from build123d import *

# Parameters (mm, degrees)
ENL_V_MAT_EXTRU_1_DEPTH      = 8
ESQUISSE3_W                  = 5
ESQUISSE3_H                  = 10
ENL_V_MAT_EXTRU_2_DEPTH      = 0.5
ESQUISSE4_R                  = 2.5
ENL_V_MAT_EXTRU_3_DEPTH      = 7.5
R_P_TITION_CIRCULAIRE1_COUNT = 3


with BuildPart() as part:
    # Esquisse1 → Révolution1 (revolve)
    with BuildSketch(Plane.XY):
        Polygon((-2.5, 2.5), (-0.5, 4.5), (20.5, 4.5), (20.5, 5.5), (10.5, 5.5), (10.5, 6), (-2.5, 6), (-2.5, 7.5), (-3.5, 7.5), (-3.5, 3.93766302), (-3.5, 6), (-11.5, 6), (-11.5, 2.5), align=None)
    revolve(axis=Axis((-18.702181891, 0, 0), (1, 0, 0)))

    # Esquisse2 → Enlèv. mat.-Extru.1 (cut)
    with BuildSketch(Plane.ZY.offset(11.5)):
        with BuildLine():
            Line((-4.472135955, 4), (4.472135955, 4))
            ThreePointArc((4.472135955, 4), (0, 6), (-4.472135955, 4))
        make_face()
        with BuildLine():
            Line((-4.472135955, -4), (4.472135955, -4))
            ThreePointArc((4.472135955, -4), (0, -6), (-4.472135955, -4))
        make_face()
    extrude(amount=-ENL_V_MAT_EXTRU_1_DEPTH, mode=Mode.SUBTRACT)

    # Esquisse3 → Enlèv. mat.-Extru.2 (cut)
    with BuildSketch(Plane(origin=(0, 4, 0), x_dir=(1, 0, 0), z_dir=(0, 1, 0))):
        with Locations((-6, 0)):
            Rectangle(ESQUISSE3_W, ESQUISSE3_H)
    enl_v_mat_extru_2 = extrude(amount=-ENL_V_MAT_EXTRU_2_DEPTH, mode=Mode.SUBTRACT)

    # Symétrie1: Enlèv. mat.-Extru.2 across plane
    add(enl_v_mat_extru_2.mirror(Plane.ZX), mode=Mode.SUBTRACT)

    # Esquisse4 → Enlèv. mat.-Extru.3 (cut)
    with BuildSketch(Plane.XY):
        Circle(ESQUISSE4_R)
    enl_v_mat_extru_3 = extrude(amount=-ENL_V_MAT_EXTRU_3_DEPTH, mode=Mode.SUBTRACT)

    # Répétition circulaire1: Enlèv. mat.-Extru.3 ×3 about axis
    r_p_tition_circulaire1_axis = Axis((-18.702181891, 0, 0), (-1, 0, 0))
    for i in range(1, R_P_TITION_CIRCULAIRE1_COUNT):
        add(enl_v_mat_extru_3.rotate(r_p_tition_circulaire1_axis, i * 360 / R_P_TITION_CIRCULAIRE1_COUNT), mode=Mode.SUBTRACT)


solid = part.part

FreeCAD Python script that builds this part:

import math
import FreeCAD as App
import Part
import Sketcher
Q = App.Units.Quantity

doc = App.newDocument("Part")
params = doc.addObject("Spreadsheet::Sheet", "Params")
for row, (alias, value) in enumerate([
    ("sketch1_width", "21 mm"),
    ("sketch1_width2", "10 mm"),
    ("sketch1_width3", "13 mm"),
    ("sketch1_width4", "1 mm"),
    ("sketch1_width5", "8 mm"),
    ("revolution_angle", "360 deg"),
    ("sketch2_radius", "6 mm"),
    ("pocket1_length", "8 mm"),
    ("sketch3_width", "5 mm"),
    ("sketch3_height", "10 mm"),
    ("pocket2_length", "0.5 mm"),
    ("sketch4_diameter", "5 mm"),
    ("pocket3_length", "7.5 mm"),
], start=1):
    params.set(f"A{row}", alias)
    params.set(f"B{row}", "=" + value)
    params.setAlias(f"B{row}", alias)

body = doc.addObject("PartDesign::Body", "Body")

# Sketch on XY plane
sketch1 = doc.addObject("Sketcher::SketchObject", "Sketch")
body.addObject(sketch1)
sketch1.AttachmentSupport = (doc.XY_Plane, [""])
sketch1.MapMode = "FlatFace"
sketch1.addGeometry([
    Part.LineSegment(App.Vector(-2.5, 2.5, 0), App.Vector(-0.5, 4.5, 0)),  # 0
    Part.LineSegment(App.Vector(-0.5, 4.5, 0), App.Vector(20.5, 4.5, 0)),  # 1
    Part.LineSegment(App.Vector(20.5, 4.5, 0), App.Vector(20.5, 5.5, 0)),  # 2
    Part.LineSegment(App.Vector(20.5, 5.5, 0), App.Vector(10.5, 5.5, 0)),  # 3
    Part.LineSegment(App.Vector(10.5, 5.5, 0), App.Vector(10.5, 6, 0)),  # 4
    Part.LineSegment(App.Vector(10.5, 6, 0), App.Vector(-2.5, 6, 0)),  # 5
    Part.LineSegment(App.Vector(-2.5, 6, 0), App.Vector(-2.5, 7.5, 0)),  # 6
    Part.LineSegment(App.Vector(-2.5, 7.5, 0), App.Vector(-3.5, 7.5, 0)),  # 7
    Part.LineSegment(App.Vector(-3.5, 7.5, 0), App.Vector(-3.5, 6, 0)),  # 8
    Part.LineSegment(App.Vector(-3.5, 6, 0), App.Vector(-11.5, 6, 0)),  # 9
    Part.LineSegment(App.Vector(-11.5, 6, 0), App.Vector(-11.5, 2.5, 0)),  # 10
    Part.LineSegment(App.Vector(-11.5, 2.5, 0), App.Vector(-2.5, 2.5, 0)),  # 11
], False)
sketch1.addConstraint([
    Sketcher.Constraint("Coincident", 0, 2, 1, 1),
    Sketcher.Constraint("Coincident", 1, 2, 2, 1),
    Sketcher.Constraint("Coincident", 2, 2, 3, 1),
    Sketcher.Constraint("Coincident", 3, 2, 4, 1),
    Sketcher.Constraint("Coincident", 4, 2, 5, 1),
    Sketcher.Constraint("Coincident", 5, 2, 6, 1),
    Sketcher.Constraint("Coincident", 6, 2, 7, 1),
    Sketcher.Constraint("Coincident", 7, 2, 8, 1),
    Sketcher.Constraint("Coincident", 8, 2, 9, 1),
    Sketcher.Constraint("Coincident", 9, 2, 10, 1),
    Sketcher.Constraint("Coincident", 10, 2, 11, 1),
    Sketcher.Constraint("Coincident", 11, 2, 0, 1),
    Sketcher.Constraint("Horizontal", 1),
    Sketcher.Constraint("Vertical", 2),
    Sketcher.Constraint("Horizontal", 3),
    Sketcher.Constraint("Vertical", 4),
    Sketcher.Constraint("Horizontal", 5),
    Sketcher.Constraint("Vertical", 6),
    Sketcher.Constraint("Horizontal", 7),
    Sketcher.Constraint("Vertical", 8),
    Sketcher.Constraint("Horizontal", 9),
    Sketcher.Constraint("Vertical", 10),
    Sketcher.Constraint("Horizontal", 11),
    Sketcher.Constraint("Horizontal", 5, 2, 8, 2),
    Sketcher.Constraint("Vertical", 6, 2, 11, 2),
    Sketcher.Constraint("Equal", 7, 2),
    Sketcher.Constraint("DistanceX", 1, 1, 1, 2, 21.0),
    Sketcher.Constraint("DistanceX", 3, 2, 3, 1, 10.0),
    Sketcher.Constraint("DistanceX", 5, 2, 5, 1, 13.0),
    Sketcher.Constraint("DistanceX", 7, 2, 7, 1, 1.0),
    Sketcher.Constraint("DistanceX", 9, 2, 9, 1, 8.0),
    Sketcher.Constraint("Angle", 0, Q("45 deg")),
    Sketcher.Constraint("DistanceY", 4, 1, 4, 2, 0.5),
    Sketcher.Constraint("DistanceY", 6, 1, 6, 2, 1.5),
    Sketcher.Constraint("DistanceY", -1, 1, 4, 2, 6.0),
    Sketcher.Constraint("DistanceX", 0, 2, -1, 1, 0.5),
])
sketch1.setExpression("Constraints[26]", "Params.sketch1_width")
sketch1.setExpression("Constraints[27]", "Params.sketch1_width2")
sketch1.setExpression("Constraints[28]", "Params.sketch1_width3")
sketch1.setExpression("Constraints[29]", "Params.sketch1_width4")
sketch1.setExpression("Constraints[30]", "Params.sketch1_width5")
revolution = doc.addObject("PartDesign::Revolution", "Revolution")
body.addObject(revolution)
revolution.Profile = sketch1
revolution.ReferenceAxis = (sketch1, ["H_Axis"])
revolution.setExpression("Angle", "Params.revolution_angle")

# Sketch on YZ plane
sketch2 = doc.addObject("Sketcher::SketchObject", "Sketch001")
body.addObject(sketch2)
sketch2.AttachmentSupport = (doc.YZ_Plane, [""])
sketch2.MapMode = "FlatFace"
sketch2.AttachmentOffset = App.Placement(App.Vector(0, 0, -11.5), App.Rotation())
sketch2.addGeometry([
    Part.LineSegment(App.Vector(4, -4.472136, 0), App.Vector(4, 4.472136, 0)),
    Part.ArcOfCircle(Part.Circle(App.Vector(0, 0, 0), App.Vector(0, 0, 1), 6), math.radians(-48.189685), math.radians(48.189685)),
    Part.LineSegment(App.Vector(-4, 4.472136, 0), App.Vector(-4, -4.472136, 0)),
    Part.ArcOfCircle(Part.Circle(App.Vector(0, 0, 0), App.Vector(0, 0, 1), 6), math.radians(131.810315), math.radians(228.189685)),
], False)
sketch2.addConstraint([
    Sketcher.Constraint("Coincident", 0, 1, 1, 1),
    Sketcher.Constraint("Coincident", 1, 2, 0, 2),
    Sketcher.Constraint("Coincident", 2, 1, 3, 1),
    Sketcher.Constraint("Coincident", 3, 2, 2, 2),
    Sketcher.Constraint("Vertical", 0),
    Sketcher.Constraint("Vertical", 2),
    Sketcher.Constraint("Coincident", 1, 3, -1, 1),
    Sketcher.Constraint("Coincident", 3, 3, -1, 1),
    Sketcher.Constraint("Equal", 1, 3),
    Sketcher.Constraint("Horizontal", 1, 2, 2, 1),
    Sketcher.Constraint("Radius", 1, 6.0),
    Sketcher.Constraint("DistanceX", -1, 1, 0, 1, 4.0),
])
sketch2.setExpression("Constraints[10]", "Params.sketch2_radius")
pocket1 = doc.addObject("PartDesign::Pocket", "Pocket")
body.addObject(pocket1)
pocket1.Profile = sketch2
pocket1.setExpression("Length", "Params.pocket1_length")
pocket1.Reversed = True

# Sketch on XZ plane
sketch3 = doc.addObject("Sketcher::SketchObject", "Sketch002")
body.addObject(sketch3)
sketch3.AttachmentSupport = (doc.XZ_Plane, [""])
sketch3.MapMode = "FlatFace"
sketch3.AttachmentOffset = App.Placement(App.Vector(0, 0, -4), App.Rotation())
sketch3.addGeometry([
    Part.LineSegment(App.Vector(-8.5, -5, 0), App.Vector(-8.5, 5, 0)),
    Part.LineSegment(App.Vector(-8.5, 5, 0), App.Vector(-3.5, 5, 0)),
    Part.LineSegment(App.Vector(-3.5, 5, 0), App.Vector(-3.5, -5, 0)),
    Part.LineSegment(App.Vector(-3.5, -5, 0), App.Vector(-8.5, -5, 0)),
], False)
sketch3.addConstraint([
    Sketcher.Constraint("Coincident", 0, 2, 1, 1),
    Sketcher.Constraint("Coincident", 1, 2, 2, 1),
    Sketcher.Constraint("Coincident", 2, 2, 3, 1),
    Sketcher.Constraint("Coincident", 3, 2, 0, 1),
    Sketcher.Constraint("Vertical", 0),
    Sketcher.Constraint("Horizontal", 1),
    Sketcher.Constraint("Vertical", 2),
    Sketcher.Constraint("Horizontal", 3),
    Sketcher.Constraint("DistanceX", 1, 1, 1, 2, 5.0),
    Sketcher.Constraint("DistanceY", 0, 1, 0, 2, 10.0),
    Sketcher.Constraint("DistanceY", -1, 1, 0, 2, 5.0),
    Sketcher.Constraint("DistanceX", 0, 2, -1, 1, 8.5),
])
sketch3.setExpression("Constraints[8]", "Params.sketch3_width")
sketch3.setExpression("Constraints[9]", "Params.sketch3_height")
pocket2 = doc.addObject("PartDesign::Pocket", "Pocket001")
body.addObject(pocket2)
pocket2.Profile = sketch3
pocket2.setExpression("Length", "Params.pocket2_length")
pocket2.Reversed = True
doc.recompute()

mirrored = doc.addObject("PartDesign::Mirrored", "Mirrored")
body.addObject(mirrored)
mirrored.Originals = [pocket2]
mirrored.MirrorPlane = (doc.XZ_Plane, [""])
body.Tip = mirrored

# Sketch on XY plane
sketch4 = doc.addObject("Sketcher::SketchObject", "Sketch003")
body.addObject(sketch4)
sketch4.AttachmentSupport = (doc.XY_Plane, [""])
sketch4.MapMode = "FlatFace"
sketch4.addGeometry(Part.Circle(App.Vector(0, 0, 0), App.Vector(0, 0, 1), 2.5), False)
sketch4.addConstraint([
    Sketcher.Constraint("Coincident", 0, 3, -1, 1),
    Sketcher.Constraint("Diameter", 0, 5.0),
])
sketch4.setExpression("Constraints[1]", "Params.sketch4_diameter")
pocket3 = doc.addObject("PartDesign::Pocket", "Pocket002")
body.addObject(pocket3)
pocket3.Profile = sketch4
pocket3.setExpression("Length", "Params.pocket3_length")
doc.recompute()

polarpattern = doc.addObject("PartDesign::PolarPattern", "PolarPattern")
body.addObject(polarpattern)
polarpattern.Originals = [pocket3]
polarpattern.Axis = (doc.X_Axis, [""])
polarpattern.Angle = 360
polarpattern.Occurrences = 3
body.Tip = polarpattern

doc.recompute()
